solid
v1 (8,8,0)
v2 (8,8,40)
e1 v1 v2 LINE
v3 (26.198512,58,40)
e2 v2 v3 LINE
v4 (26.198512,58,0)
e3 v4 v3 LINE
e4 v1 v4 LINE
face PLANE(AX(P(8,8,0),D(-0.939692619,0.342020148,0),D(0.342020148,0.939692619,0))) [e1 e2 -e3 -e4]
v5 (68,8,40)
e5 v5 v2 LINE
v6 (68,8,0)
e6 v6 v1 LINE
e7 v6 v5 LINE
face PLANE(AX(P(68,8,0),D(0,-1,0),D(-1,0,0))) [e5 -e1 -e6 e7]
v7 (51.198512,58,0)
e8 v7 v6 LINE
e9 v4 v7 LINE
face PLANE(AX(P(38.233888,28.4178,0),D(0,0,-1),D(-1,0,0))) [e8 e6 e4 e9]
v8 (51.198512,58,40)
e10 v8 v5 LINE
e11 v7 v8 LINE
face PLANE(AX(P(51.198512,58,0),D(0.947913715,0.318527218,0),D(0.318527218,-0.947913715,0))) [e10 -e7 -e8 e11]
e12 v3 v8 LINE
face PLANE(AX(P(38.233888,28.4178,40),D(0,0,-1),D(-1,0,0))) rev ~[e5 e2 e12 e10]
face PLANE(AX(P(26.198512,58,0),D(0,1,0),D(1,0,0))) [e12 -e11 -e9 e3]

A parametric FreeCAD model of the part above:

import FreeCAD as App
import Part
import Sketcher
from FreeCAD import Vector
Q = App.Units.Quantity


def add_polygon(sketch, points):
    """Adds a closed chain of lines whose ends are joined by coincident constraints."""
    first, n = sketch.GeometryCount, len(points)
    for a, b in zip(points, points[1:] + points[:1]):
        sketch.addGeometry(Part.LineSegment(App.Vector(*a, 0), App.Vector(*b, 0)), False)
    for i in range(n):
        sketch.addConstraint(Sketcher.Constraint("Coincident", first + i, 2, first + (i + 1) % n, 1))

doc = App.newDocument("Part")
body = doc.addObject("PartDesign::Body", "Body")

# Sketch on XY plane
sketch1 = body.newObject("Sketcher::SketchObject", "Sketch")
sketch1.AttachmentSupport = (doc.getObject("XY_Plane"), [""])
sketch1.MapMode = "FlatFace"
add_polygon(sketch1, [(51, 58), (26, 58), (8, 8), (68, 8)])  # lines 0-3
sketch1.addConstraint([
    Sketcher.Constraint("Horizontal", 0),
    Sketcher.Constraint("Horizontal", 2),
    Sketcher.Constraint("DistanceX", 0, 2, 0, 1, Q("25 mm")),
    Sketcher.Constraint("DistanceX", 2, 1, 2, 2, Q("60 mm")),
    Sketcher.Constraint("Angle", 1, Q("-110 deg")),
    Sketcher.Constraint("DistanceY", -1, 1, 0, 2, Q("58 mm")),
    Sketcher.Constraint("DistanceX", -1, 1, 1, 2, Q("8 mm")),
    Sketcher.Constraint("DistanceY", -1, 1, 1, 2, Q("8 mm")),
])
pad1 = body.newObject("PartDesign::Pad", "Pad")
pad1.Profile = sketch1
pad1.Length = 40

doc.recompute()
